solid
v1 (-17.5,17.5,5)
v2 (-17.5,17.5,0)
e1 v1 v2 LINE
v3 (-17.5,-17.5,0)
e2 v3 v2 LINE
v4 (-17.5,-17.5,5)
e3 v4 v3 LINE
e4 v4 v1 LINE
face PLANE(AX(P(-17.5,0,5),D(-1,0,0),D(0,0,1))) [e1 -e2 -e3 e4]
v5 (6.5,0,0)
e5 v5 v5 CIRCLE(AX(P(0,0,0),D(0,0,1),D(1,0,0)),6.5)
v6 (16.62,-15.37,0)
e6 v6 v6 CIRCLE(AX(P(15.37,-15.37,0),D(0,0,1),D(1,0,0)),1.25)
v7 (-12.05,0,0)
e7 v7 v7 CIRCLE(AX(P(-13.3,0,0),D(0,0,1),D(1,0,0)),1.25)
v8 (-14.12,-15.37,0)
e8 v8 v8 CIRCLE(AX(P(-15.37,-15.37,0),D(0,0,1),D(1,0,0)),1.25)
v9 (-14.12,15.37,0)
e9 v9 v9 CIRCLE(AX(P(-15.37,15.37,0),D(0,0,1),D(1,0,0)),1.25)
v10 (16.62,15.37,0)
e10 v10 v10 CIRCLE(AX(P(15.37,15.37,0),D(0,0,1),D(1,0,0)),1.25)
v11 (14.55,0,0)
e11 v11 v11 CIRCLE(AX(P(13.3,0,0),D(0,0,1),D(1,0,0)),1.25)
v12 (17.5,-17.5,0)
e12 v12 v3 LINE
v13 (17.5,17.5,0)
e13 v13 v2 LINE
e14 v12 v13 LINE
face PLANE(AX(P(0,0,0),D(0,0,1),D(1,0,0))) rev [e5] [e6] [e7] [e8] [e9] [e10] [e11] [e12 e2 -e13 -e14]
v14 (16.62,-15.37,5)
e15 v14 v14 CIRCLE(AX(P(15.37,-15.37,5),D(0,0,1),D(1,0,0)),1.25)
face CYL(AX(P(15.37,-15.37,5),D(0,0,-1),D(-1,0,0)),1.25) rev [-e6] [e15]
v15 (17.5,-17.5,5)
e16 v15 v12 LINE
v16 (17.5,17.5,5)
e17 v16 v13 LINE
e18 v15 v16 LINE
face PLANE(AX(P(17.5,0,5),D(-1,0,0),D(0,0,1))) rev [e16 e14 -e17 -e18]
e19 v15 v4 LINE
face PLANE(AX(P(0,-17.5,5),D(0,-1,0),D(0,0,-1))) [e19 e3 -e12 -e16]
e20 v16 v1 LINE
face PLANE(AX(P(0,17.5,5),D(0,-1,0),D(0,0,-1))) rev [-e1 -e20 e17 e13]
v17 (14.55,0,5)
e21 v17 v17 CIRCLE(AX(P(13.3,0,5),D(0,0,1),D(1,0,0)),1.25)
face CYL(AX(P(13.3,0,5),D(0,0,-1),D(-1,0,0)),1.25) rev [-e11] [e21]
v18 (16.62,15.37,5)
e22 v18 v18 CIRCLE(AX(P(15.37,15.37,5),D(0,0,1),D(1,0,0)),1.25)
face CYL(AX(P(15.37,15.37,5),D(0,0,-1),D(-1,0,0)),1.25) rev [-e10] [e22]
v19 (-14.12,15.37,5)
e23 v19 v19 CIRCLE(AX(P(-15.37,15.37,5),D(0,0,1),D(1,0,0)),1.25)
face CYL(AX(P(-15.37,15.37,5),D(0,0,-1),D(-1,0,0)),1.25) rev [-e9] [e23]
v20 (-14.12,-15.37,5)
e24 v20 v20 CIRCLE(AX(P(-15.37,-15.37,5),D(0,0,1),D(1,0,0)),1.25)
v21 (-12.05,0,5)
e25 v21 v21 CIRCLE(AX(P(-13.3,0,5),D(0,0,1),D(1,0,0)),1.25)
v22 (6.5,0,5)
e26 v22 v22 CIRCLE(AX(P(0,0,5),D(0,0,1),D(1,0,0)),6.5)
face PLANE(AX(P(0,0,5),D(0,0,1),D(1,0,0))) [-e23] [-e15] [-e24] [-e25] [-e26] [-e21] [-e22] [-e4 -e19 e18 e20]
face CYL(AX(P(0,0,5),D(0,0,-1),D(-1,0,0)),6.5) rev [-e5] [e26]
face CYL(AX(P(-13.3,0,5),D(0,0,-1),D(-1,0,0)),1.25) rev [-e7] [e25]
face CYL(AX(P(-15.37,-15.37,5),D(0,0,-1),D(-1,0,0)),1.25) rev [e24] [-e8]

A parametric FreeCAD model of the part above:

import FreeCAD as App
import Part
import Sketcher
Q = App.Units.Quantity


def add_polygon(sketch, points):
    """Adds a closed chain of lines whose ends are joined by coincident constraints."""
    first, n = sketch.GeometryCount, len(points)
    for a, b in zip(points, points[1:] + points[:1]):
        sketch.addGeometry(Part.LineSegment(App.Vector(*a, 0), App.Vector(*b, 0)), False)
    for i in range(n):
        sketch.addConstraint(Sketcher.Constraint("Coincident", first + i, 2, first + (i + 1) % n, 1))

doc = App.newDocument("Part")
body = doc.addObject("PartDesign::Body", "Body")

sketch1 = doc.addObject("Sketcher::SketchObject", "Sketch")
body.addObject(sketch1)
sketch1.AttachmentSupport = (doc.XY_Plane, [""])
sketch1.MapMode = "FlatFace"
add_polygon(sketch1, [(-17.5, 17.5), (-17.5, -17.5), (17.5, -17.5), (17.5, 17.5)])
sketch1.addGeometry(Part.Circle(App.Vector(-15.4, -15.4, 0), App.Vector(0, 0, 1), 1.2), False)
sketch1.addGeometry(Part.Circle(App.Vector(15.4, -15.4, 0), App.Vector(0, 0, 1), 1.2), False)
sketch1.addGeometry(Part.Circle(App.Vector(-13.3, 0, 0), App.Vector(0, 0, 1), 1.2), False)
sketch1.addGeometry(Part.Circle(App.Vector(-15.4, 15.4, 0), App.Vector(0, 0, 1), 1.2), False)
sketch1.addGeometry(Part.Circle(App.Vector(0, 0, 0), App.Vector(0, 0, 1), 6.5), False)
sketch1.addGeometry(Part.Circle(App.Vector(13.3, 0, 0), App.Vector(0, 0, 1), 1.2), False)
sketch1.addGeometry(Part.Circle(App.Vector(15.4, 15.4, 0), App.Vector(0, 0, 1), 1.2), False)
sketch1.addConstraint([
    Sketcher.Constraint("Vertical", 0),
    Sketcher.Constraint("Horizontal", 1),
    Sketcher.Constraint("Vertical", 2),
    Sketcher.Constraint("Horizontal", 3),
    Sketcher.Constraint("Coincident", 8, 3, -1, 1),
    Sketcher.Constraint("Equal", 4, 5),
    Sketcher.Constraint("Equal", 5, 6),
    Sketcher.Constraint("Equal", 6, 7),
    Sketcher.Constraint("Equal", 7, 9),
    Sketcher.Constraint("Equal", 9, 10),
    Sketcher.Constraint("Symmetric", 5, 3, 7, 3, -1, 1),
    Sketcher.Constraint("Symmetric", 6, 3, 9, 3, -1, 1),
    Sketcher.Constraint("Symmetric", 4, 3, 10, 3, -1, 1),
    Sketcher.Constraint("Symmetric", 0, 2, 2, 2, -1, 1),
    Sketcher.Constraint("Symmetric", 4, 3, 5, 3, -2),
    Sketcher.Constraint("PointOnObject", 6, 3, -1),
    Sketcher.Constraint("Equal", 3, 0),
    Sketcher.Constraint("Diameter", 8, Q("13 mm")),
    Sketcher.Constraint("Diameter", 4, Q("2.5 mm")),
    Sketcher.Constraint("DistanceX", 1, 1, 1, 2, Q("35 mm")),
    Sketcher.Constraint("DistanceX", 6, 3, -1, 1, Q("13.3 mm")),
    Sketcher.Constraint("DistanceX", 4, 3, -1, 1, Q("15.37 mm")),
    Sketcher.Constraint("DistanceY", 4, 3, -1, 1, Q("15.37 mm")),
])
pad1 = doc.addObject("PartDesign::Pad", "Pad")
body.addObject(pad1)
pad1.Profile = sketch1
pad1.Length = 5

doc.recompute()
